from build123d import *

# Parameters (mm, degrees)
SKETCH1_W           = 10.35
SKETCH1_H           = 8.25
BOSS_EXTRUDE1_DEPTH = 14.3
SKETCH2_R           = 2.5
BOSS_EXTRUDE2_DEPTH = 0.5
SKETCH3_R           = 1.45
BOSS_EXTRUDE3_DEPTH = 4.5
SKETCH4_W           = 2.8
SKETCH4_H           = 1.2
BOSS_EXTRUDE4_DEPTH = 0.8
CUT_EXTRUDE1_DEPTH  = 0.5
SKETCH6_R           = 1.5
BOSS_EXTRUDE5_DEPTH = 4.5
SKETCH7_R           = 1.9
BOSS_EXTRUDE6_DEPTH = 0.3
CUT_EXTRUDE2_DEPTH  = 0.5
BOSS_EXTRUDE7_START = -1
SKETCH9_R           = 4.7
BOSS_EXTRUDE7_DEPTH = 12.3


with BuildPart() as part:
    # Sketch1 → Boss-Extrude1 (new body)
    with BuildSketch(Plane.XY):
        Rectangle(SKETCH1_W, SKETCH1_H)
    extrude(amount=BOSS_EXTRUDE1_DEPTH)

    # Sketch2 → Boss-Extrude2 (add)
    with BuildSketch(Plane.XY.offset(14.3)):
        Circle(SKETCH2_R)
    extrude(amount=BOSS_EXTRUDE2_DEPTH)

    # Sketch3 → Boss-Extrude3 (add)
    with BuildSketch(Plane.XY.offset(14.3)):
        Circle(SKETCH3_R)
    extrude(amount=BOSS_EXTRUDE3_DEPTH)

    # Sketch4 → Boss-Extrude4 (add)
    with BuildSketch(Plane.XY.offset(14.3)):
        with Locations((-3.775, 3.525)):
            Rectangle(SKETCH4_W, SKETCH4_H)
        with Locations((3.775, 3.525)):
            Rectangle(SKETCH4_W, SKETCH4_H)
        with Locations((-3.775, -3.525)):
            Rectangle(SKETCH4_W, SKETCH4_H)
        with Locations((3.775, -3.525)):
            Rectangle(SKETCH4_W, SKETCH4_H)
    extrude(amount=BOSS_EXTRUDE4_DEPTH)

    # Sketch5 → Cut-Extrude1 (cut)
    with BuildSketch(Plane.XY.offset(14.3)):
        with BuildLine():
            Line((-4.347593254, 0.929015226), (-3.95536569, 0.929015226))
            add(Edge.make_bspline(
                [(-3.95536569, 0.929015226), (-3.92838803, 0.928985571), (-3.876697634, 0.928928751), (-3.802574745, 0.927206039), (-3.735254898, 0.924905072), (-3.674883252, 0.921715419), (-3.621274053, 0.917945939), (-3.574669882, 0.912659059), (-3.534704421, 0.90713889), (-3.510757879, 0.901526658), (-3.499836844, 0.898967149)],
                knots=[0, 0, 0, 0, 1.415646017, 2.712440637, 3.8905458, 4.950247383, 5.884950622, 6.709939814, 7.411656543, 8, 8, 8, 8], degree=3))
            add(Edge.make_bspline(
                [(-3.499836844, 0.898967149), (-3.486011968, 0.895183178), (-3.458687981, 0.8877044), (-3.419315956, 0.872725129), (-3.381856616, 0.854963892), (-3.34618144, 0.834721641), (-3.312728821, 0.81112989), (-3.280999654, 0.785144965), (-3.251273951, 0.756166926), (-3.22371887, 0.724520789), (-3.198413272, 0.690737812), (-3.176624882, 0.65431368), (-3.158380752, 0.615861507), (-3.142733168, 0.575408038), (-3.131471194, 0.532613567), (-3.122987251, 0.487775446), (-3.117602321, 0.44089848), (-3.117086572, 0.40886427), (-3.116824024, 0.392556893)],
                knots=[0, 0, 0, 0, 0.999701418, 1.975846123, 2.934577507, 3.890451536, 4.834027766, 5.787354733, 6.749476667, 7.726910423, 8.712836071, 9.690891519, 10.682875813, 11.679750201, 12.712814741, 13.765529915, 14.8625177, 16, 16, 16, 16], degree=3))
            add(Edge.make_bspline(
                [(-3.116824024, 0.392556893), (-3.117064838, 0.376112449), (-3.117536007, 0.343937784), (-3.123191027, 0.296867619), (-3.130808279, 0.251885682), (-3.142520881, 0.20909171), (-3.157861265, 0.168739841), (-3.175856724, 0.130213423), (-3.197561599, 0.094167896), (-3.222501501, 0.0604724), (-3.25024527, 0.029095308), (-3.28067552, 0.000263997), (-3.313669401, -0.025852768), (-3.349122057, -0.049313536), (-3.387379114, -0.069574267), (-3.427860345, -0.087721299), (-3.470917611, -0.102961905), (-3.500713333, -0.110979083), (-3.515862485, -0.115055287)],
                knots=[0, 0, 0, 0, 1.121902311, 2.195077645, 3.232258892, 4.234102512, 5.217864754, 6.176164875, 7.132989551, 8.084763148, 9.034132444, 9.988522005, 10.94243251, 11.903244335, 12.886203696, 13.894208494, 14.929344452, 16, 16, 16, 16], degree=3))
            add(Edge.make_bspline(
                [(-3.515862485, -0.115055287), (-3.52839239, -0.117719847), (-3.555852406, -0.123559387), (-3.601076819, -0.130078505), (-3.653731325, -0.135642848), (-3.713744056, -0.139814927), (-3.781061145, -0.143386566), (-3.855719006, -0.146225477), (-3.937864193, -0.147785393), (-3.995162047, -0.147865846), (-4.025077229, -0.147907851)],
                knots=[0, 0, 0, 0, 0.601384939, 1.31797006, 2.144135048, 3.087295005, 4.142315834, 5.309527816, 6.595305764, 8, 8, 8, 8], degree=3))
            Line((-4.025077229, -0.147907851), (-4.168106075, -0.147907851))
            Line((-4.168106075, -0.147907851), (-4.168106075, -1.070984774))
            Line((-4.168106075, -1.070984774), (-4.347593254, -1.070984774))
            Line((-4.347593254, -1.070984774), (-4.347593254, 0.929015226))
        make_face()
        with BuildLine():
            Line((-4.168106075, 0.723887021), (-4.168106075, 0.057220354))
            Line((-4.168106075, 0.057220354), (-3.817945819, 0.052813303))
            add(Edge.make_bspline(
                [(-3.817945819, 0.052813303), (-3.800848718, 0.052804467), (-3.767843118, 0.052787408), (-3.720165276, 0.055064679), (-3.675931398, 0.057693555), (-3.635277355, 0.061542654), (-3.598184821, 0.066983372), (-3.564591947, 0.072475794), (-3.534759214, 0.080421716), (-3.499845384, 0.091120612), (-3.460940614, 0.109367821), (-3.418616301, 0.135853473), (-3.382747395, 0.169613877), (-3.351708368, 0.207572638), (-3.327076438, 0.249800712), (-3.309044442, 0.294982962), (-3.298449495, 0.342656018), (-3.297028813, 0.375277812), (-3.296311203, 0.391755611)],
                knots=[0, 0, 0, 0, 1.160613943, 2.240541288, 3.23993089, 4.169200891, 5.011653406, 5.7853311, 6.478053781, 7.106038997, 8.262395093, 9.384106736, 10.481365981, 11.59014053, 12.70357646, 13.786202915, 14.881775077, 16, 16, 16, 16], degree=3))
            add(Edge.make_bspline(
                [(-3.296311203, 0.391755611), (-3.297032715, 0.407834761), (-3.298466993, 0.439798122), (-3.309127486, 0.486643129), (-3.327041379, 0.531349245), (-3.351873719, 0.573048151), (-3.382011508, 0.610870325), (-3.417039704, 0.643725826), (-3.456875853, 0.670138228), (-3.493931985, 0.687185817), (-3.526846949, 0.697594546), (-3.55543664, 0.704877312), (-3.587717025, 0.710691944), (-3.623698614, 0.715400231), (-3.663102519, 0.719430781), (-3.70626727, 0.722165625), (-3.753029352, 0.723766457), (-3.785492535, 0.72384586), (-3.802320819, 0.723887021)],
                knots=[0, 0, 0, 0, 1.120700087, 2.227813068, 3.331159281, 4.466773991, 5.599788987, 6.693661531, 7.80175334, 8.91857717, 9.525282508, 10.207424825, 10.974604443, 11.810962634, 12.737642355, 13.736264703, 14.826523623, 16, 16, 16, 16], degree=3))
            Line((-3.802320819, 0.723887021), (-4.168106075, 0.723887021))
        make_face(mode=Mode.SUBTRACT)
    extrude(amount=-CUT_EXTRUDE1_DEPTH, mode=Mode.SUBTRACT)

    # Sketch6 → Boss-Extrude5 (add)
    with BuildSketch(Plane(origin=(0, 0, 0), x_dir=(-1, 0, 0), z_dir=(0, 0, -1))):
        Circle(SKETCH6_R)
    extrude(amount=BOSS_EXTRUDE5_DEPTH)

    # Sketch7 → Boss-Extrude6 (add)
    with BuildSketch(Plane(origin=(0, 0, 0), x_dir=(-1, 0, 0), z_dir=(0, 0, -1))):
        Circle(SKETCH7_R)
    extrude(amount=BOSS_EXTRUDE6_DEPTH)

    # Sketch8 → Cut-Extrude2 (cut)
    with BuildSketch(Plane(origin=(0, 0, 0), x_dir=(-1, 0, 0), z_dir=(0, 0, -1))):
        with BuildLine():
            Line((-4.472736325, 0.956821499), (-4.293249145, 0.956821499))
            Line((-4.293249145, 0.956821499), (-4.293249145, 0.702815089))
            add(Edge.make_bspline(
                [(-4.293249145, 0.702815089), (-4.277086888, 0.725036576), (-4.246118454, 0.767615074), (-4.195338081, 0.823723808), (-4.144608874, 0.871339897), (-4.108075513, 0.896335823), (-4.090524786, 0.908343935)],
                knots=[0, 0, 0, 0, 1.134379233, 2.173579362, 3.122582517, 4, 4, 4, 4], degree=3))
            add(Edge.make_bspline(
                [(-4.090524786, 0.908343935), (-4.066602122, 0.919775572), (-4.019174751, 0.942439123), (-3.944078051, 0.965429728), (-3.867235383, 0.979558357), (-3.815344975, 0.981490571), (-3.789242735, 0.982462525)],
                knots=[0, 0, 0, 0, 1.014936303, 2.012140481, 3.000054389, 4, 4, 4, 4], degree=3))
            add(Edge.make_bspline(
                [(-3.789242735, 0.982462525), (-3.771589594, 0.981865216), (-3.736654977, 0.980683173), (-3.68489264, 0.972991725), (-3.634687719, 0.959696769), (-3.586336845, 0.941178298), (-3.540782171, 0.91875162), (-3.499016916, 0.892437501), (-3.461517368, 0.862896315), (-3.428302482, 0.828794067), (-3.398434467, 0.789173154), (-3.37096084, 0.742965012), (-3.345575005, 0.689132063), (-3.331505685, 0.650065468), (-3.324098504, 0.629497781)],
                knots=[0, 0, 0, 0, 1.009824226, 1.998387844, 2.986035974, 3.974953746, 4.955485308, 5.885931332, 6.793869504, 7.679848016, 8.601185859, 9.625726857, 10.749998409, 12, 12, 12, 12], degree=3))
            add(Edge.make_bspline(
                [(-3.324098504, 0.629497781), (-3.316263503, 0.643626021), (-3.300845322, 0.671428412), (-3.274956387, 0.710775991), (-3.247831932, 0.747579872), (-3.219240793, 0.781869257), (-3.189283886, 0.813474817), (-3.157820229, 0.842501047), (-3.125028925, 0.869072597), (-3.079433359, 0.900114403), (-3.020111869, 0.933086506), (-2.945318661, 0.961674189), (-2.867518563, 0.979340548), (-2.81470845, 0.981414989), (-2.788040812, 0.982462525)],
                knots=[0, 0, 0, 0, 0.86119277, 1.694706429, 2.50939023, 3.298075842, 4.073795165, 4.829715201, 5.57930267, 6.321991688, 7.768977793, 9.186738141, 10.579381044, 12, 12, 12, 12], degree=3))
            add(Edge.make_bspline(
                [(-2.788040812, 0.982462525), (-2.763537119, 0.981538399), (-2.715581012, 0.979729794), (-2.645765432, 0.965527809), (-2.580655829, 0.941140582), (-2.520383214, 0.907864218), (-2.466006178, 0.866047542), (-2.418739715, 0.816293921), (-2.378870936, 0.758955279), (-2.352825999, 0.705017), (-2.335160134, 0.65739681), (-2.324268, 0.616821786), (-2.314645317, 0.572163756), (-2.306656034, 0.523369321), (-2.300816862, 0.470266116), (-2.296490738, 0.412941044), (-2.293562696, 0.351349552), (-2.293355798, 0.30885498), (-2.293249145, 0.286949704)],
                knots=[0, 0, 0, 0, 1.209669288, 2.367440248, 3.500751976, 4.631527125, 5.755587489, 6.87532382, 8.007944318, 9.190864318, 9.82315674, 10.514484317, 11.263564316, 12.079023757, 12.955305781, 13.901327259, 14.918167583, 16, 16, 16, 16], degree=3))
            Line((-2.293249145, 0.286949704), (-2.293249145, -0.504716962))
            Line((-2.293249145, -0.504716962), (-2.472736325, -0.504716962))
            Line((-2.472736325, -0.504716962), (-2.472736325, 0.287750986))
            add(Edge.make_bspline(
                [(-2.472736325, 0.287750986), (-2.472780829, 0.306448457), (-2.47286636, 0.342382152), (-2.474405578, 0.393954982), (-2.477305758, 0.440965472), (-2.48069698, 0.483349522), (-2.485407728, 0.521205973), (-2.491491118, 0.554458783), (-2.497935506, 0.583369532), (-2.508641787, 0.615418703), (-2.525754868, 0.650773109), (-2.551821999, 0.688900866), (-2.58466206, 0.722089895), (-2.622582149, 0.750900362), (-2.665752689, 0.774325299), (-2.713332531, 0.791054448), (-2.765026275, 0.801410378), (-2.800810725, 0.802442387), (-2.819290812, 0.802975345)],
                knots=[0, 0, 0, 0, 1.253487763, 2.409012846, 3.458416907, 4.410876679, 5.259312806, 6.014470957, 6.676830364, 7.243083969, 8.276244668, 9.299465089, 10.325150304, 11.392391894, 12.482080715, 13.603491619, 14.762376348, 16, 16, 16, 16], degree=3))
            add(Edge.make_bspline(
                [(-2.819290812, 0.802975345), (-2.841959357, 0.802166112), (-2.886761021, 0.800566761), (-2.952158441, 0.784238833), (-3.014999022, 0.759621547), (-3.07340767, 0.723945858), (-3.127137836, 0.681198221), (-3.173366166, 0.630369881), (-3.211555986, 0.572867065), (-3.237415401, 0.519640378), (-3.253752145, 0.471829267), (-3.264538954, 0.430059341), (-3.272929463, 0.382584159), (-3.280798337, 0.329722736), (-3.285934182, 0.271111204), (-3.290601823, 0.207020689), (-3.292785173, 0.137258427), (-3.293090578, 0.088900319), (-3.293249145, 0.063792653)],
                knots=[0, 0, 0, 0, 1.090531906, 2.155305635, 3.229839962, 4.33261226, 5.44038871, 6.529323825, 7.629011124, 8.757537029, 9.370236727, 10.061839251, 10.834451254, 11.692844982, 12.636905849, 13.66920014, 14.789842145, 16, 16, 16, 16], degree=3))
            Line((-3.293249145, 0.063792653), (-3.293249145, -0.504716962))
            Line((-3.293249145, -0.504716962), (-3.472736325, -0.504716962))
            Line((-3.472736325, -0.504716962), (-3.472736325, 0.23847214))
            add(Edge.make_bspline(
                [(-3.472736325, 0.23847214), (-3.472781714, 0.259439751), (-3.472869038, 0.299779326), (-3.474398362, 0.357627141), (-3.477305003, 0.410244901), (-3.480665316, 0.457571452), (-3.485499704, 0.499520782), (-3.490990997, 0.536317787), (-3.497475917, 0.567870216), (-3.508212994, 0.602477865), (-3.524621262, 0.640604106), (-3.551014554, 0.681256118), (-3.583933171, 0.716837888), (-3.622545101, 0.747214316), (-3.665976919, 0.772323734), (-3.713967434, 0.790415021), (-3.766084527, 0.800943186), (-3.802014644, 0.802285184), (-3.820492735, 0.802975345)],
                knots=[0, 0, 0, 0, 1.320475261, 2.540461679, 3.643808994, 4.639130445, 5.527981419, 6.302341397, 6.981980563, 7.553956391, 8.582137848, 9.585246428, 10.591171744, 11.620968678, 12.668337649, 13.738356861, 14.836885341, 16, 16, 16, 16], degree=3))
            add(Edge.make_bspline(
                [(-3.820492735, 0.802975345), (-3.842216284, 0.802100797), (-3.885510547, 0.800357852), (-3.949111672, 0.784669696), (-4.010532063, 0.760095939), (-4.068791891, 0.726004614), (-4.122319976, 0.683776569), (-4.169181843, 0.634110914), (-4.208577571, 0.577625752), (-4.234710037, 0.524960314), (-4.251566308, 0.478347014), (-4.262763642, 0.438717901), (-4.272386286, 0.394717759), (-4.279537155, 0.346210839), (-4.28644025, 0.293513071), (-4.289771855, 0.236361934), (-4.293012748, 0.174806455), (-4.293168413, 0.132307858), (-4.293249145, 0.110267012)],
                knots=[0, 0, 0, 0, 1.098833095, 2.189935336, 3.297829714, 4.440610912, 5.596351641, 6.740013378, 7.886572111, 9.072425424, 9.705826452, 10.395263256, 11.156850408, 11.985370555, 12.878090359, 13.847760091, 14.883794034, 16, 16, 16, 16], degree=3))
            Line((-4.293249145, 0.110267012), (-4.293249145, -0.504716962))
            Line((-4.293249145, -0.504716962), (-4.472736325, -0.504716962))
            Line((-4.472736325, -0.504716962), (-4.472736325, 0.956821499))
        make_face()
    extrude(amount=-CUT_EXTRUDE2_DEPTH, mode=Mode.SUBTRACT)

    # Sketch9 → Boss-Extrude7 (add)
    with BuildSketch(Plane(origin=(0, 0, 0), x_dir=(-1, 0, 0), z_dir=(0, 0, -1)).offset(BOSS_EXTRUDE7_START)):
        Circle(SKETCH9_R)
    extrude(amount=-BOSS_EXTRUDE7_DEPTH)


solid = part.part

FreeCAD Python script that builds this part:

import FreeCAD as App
import Part
import Sketcher
Q = App.Units.Quantity


def add_polygon(sketch, points):
    """Adds a closed chain of lines whose ends are joined by coincident constraints."""
    first, n = sketch.GeometryCount, len(points)
    for a, b in zip(points, points[1:] + points[:1]):
        sketch.addGeometry(Part.LineSegment(App.Vector(*a, 0), App.Vector(*b, 0)), False)
    for i in range(n):
        sketch.addConstraint(Sketcher.Constraint("Coincident", first + i, 2, first + (i + 1) % n, 1))

doc = App.newDocument("Part")
body = doc.addObject("PartDesign::Body", "Body")

sketch1 = doc.addObject("Sketcher::SketchObject", "Sketch")
body.addObject(sketch1)
sketch1.AttachmentSupport = (doc.XY_Plane, [""])
sketch1.MapMode = "FlatFace"
add_polygon(sketch1, [(-5, 4), (-5, -4), (5, -4), (5, 4)])
sketch1.addConstraint(Sketcher.Constraint("Vertical", 0))
sketch1.addConstraint(Sketcher.Constraint("Horizontal", 1))
sketch1.addConstraint(Sketcher.Constraint("Vertical", 2))
sketch1.addConstraint(Sketcher.Constraint("Horizontal", 3))
sketch1.addConstraint(Sketcher.Constraint("Symmetric", 0, 2, 2, 2, -1, 1))
sketch1.addConstraint(Sketcher.Constraint("DistanceX", 1, 1, 1, 2, Q("10.35 mm")))
sketch1.addConstraint(Sketcher.Constraint("DistanceY", 0, 2, 0, 1, Q("8.25 mm")))
pad1 = doc.addObject("PartDesign::Pad", "Pad")
body.addObject(pad1)
pad1.Profile = sketch1
pad1.Length = 14.3

sketch2 = doc.addObject("Sketcher::SketchObject", "Sketch001")
body.addObject(sketch2)
sketch2.AttachmentSupport = (doc.XY_Plane, [""])
sketch2.MapMode = "FlatFace"
sketch2.AttachmentOffset = App.Placement(App.Vector(0, 0, 14.3), App.Rotation())
sketch2.addGeometry(Part.Circle(App.Vector(0, 0, 0), App.Vector(0, 0, 1), 2.5), False)
sketch2.addConstraint(Sketcher.Constraint("Coincident", 0, 3, -1, 1))
sketch2.addConstraint(Sketcher.Constraint("Diameter", 0, Q("5 mm")))
pad2 = doc.addObject("PartDesign::Pad", "Pad001")
body.addObject(pad2)
pad2.Profile = sketch2
pad2.Length = 0.5

sketch3 = doc.addObject("Sketcher::SketchObject", "Sketch002")
body.addObject(sketch3)
sketch3.AttachmentSupport = (doc.XY_Plane, [""])
sketch3.MapMode = "FlatFace"
sketch3.AttachmentOffset = App.Placement(App.Vector(0, 0, 14.3), App.Rotation())
sketch3.addGeometry(Part.Circle(App.Vector(0, 0, 0), App.Vector(0, 0, 1), 1.4), False)
sketch3.addConstraint(Sketcher.Constraint("Coincident", 0, 3, -1, 1))
sketch3.addConstraint(Sketcher.Constraint("Diameter", 0, Q("2.9 mm")))
pad3 = doc.addObject("PartDesign::Pad", "Pad002")
body.addObject(pad3)
pad3.Profile = sketch3
pad3.Length = 4.5

sketch4 = doc.addObject("Sketcher::SketchObject", "Sketch003")
body.addObject(sketch4)
sketch4.AttachmentSupport = (doc.XY_Plane, [""])
sketch4.MapMode = "FlatFace"
sketch4.AttachmentOffset = App.Placement(App.Vector(0, 0, 14.3), App.Rotation())
add_polygon(sketch4, [(-5.2, 4.1), (-5.2, 2.9), (-2.4, 2.9), (-2.4, 4.1)])
add_polygon(sketch4, [(2.4, 4.1), (2.4, 2.9), (5.2, 2.9), (5.2, 4.1)])
add_polygon(sketch4, [(-5.2, -2.9), (-5.2, -4.1), (-2.4, -4.1), (-2.4, -2.9)])
add_polygon(sketch4, [(2.4, -2.9), (2.4, -4.1), (5.2, -4.1), (5.2, -2.9)])
sketch4.addConstraint(Sketcher.Constraint("Vertical", 0))
sketch4.addConstraint(Sketcher.Constraint("Horizontal", 1))
sketch4.addConstraint(Sketcher.Constraint("Vertical", 2))
sketch4.addConstraint(Sketcher.Constraint("Horizontal", 3))
sketch4.addConstraint(Sketcher.Constraint("Vertical", 4))
sketch4.addConstraint(Sketcher.Constraint("Horizontal", 5))
sketch4.addConstraint(Sketcher.Constraint("Vertical", 6))
sketch4.addConstraint(Sketcher.Constraint("Horizontal", 7))
sketch4.addConstraint(Sketcher.Constraint("Vertical", 8))
sketch4.addConstraint(Sketcher.Constraint("Horizontal", 9))
sketch4.addConstraint(Sketcher.Constraint("Vertical", 10))
sketch4.addConstraint(Sketcher.Constraint("Horizontal", 11))
sketch4.addConstraint(Sketcher.Constraint("Vertical", 12))
sketch4.addConstraint(Sketcher.Constraint("Horizontal", 13))
sketch4.addConstraint(Sketcher.Constraint("Vertical", 14))
sketch4.addConstraint(Sketcher.Constraint("Horizontal", 15))
sketch4.addConstraint(Sketcher.Constraint("Symmetric", 6, 2, 8, 2, -1, 1))
sketch4.addConstraint(Sketcher.Constraint("Symmetric", 4, 2, 10, 2, -1, 1))
sketch4.addConstraint(Sketcher.Constraint("Symmetric", 2, 2, 12, 2, -1, 1))
sketch4.addConstraint(Sketcher.Constraint("Symmetric", 0, 2, 14, 2, -1, 1))
sketch4.addConstraint(Sketcher.Constraint("Symmetric", 1, 2, 4, 2, -2))
sketch4.addConstraint(Sketcher.Constraint("Symmetric", 3, 2, 6, 2, -2))
sketch4.addConstraint(Sketcher.Constraint("DistanceX", 1, 1, 1, 2, Q("2.8 mm")))
sketch4.addConstraint(Sketcher.Constraint("DistanceY", 0, 2, 0, 1, Q("1.2 mm")))
sketch4.addConstraint(Sketcher.Constraint("DistanceX", 1, 2, 4, 2, Q("4.75 mm")))
sketch4.addConstraint(Sketcher.Constraint("DistanceY", 8, 2, 0, 2, Q("7.05 mm")))
pad4 = doc.addObject("PartDesign::Pad", "Pad003")
body.addObject(pad4)
pad4.Profile = sketch4
pad4.Length = 0.8

sketch5 = doc.addObject("Sketcher::SketchObject", "Sketch004")
body.addObject(sketch5)
sketch5.AttachmentSupport = (doc.XY_Plane, [""])
sketch5.MapMode = "FlatFace"
sketch5.AttachmentOffset = App.Placement(App.Vector(0, 0, 14.3), App.Rotation())
sketch5.addGeometry(Part.LineSegment(App.Vector(-3.955366, 0.929015, 0), App.Vector(-4.347593, 0.929015, 0)), False)
sketch5.addGeometry(Part.LineSegment(App.Vector(-4.347593, 0.929015, 0), App.Vector(-4.347593, -1.070985, 0)), False)
sketch5.addGeometry(Part.LineSegment(App.Vector(-4.347593, -1.070985, 0), App.Vector(-4.168106, -1.070985, 0)), False)
sketch5.addGeometry(Part.LineSegment(App.Vector(-4.168106, -1.070985, 0), App.Vector(-4.168106, -0.147908, 0)), False)
sketch5.addGeometry(Part.LineSegment(App.Vector(-4.168106, -0.147908, 0), App.Vector(-4.025077, -0.147908, 0)), False)
sketch5.addGeometry(Part.BSplineCurve([App.Vector(-3.515862, -0.115055, 0), App.Vector(-3.528392, -0.11772, 0), App.Vector(-3.555852, -0.123559, 0), App.Vector(-3.601077, -0.130079, 0), App.Vector(-3.653731, -0.135643, 0), App.Vector(-3.713744, -0.139815, 0), App.Vector(-3.781061, -0.143387, 0), App.Vector(-3.855719, -0.146225, 0), App.Vector(-3.937864, -0.147785, 0), App.Vector(-3.995162, -0.147866, 0), App.Vector(-4.025077, -0.147908, 0)], [4, 1, 1, 1, 1, 1, 1, 1, 4], [0, 0.601384939, 1.31797006, 2.144135048, 3.087295005, 4.142315834, 5.309527816, 6.595305764, 8], False, 3, [1, 1, 1, 1, 1, 1, 1, 1, 1, 1, 1], False), False)
sketch5.addGeometry(Part.BSplineCurve([App.Vector(-3.116824, 0.392557, 0), App.Vector(-3.117065, 0.376112, 0), App.Vector(-3.117536, 0.343938, 0), App.Vector(-3.123191, 0.296868, 0), App.Vector(-3.130808, 0.251886, 0), App.Vector(-3.142521, 0.209092, 0), App.Vector(-3.157861, 0.16874, 0), App.Vector(-3.175857, 0.130213, 0), App.Vector(-3.197562, 0.094168, 0), App.Vector(-3.222502, 0.060472, 0), App.Vector(-3.250245, 0.029095, 0), App.Vector(-3.280676, 0.000264, 0), App.Vector(-3.313669, -0.025853, 0), App.Vector(-3.349122, -0.049314, 0), App.Vector(-3.387379, -0.069574, 0), App.Vector(-3.42786, -0.087721, 0), App.Vector(-3.470918, -0.102962, 0), App.Vector(-3.500713, -0.110979, 0), App.Vector(-3.515862, -0.115055, 0)], [4, 1, 1, 1, 1, 1, 1, 1, 1, 1, 1, 1, 1, 1, 1, 1, 4], [0, 1.121902311, 2.195077645, 3.232258892, 4.234102512, 5.217864754, 6.176164875, 7.132989551, 8.084763148, 9.034132444, 9.988522005, 10.94243251, 11.903244335, 12.886203696, 13.894208494, 14.929344452, 16], False, 3, [1, 1, 1, 1, 1, 1, 1, 1, 1, 1, 1, 1, 1, 1, 1, 1, 1, 1, 1], False), False)
sketch5.addGeometry(Part.BSplineCurve([App.Vector(-3.499837, 0.898967, 0), App.Vector(-3.486012, 0.895183, 0), App.Vector(-3.458688, 0.887704, 0), App.Vector(-3.419316, 0.872725, 0), App.Vector(-3.381857, 0.854964, 0), App.Vector(-3.346181, 0.834722, 0), App.Vector(-3.312729, 0.81113, 0), App.Vector(-3.281, 0.785145, 0), App.Vector(-3.251274, 0.756167, 0), App.Vector(-3.223719, 0.724521, 0), App.Vector(-3.198413, 0.690738, 0), App.Vector(-3.176625, 0.654314, 0), App.Vector(-3.158381, 0.615862, 0), App.Vector(-3.142733, 0.575408, 0), App.Vector(-3.131471, 0.532614, 0), App.Vector(-3.122987, 0.487775, 0), App.Vector(-3.117602, 0.440898, 0), App.Vector(-3.117087, 0.408864, 0), App.Vector(-3.116824, 0.392557, 0)], [4, 1, 1, 1, 1, 1, 1, 1, 1, 1, 1, 1, 1, 1, 1, 1, 4], [0, 0.999701418, 1.975846123, 2.934577507, 3.890451536, 4.834027766, 5.787354733, 6.749476667, 7.726910423, 8.712836071, 9.690891519, 10.682875813, 11.679750201, 12.712814741, 13.765529915, 14.8625177, 16], False, 3, [1, 1, 1, 1, 1, 1, 1, 1, 1, 1, 1, 1, 1, 1, 1, 1, 1, 1, 1], False), False)
sketch5.addGeometry(Part.BSplineCurve([App.Vector(-3.955366, 0.929015, 0), App.Vector(-3.928388, 0.928986, 0), App.Vector(-3.876698, 0.928929, 0), App.Vector(-3.802575, 0.927206, 0), App.Vector(-3.735255, 0.924905, 0), App.Vector(-3.674883, 0.921715, 0), App.Vector(-3.621274, 0.917946, 0), App.Vector(-3.57467, 0.912659, 0), App.Vector(-3.534704, 0.907139, 0), App.Vector(-3.510758, 0.901527, 0), App.Vector(-3.499837, 0.898967, 0)], [4, 1, 1, 1, 1, 1, 1, 1, 4], [0, 1.415646017, 2.712440637, 3.8905458, 4.950247383, 5.884950622, 6.709939814, 7.411656543, 8], False, 3, [1, 1, 1, 1, 1, 1, 1, 1, 1, 1, 1], False), False)
sketch5.addGeometry(Part.LineSegment(App.Vector(-4.168106, 0.723887, 0), App.Vector(-3.802321, 0.723887, 0)), False)
sketch5.addGeometry(Part.BSplineCurve([App.Vector(-3.296311, 0.391756, 0), App.Vector(-3.297033, 0.407835, 0), App.Vector(-3.298467, 0.439798, 0), App.Vector(-3.309127, 0.486643, 0), App.Vector(-3.327041, 0.531349, 0), App.Vector(-3.351874, 0.573048, 0), App.Vector(-3.382012, 0.61087, 0), App.Vector(-3.41704, 0.643726, 0), App.Vector(-3.456876, 0.670138, 0), App.Vector(-3.493932, 0.687186, 0), App.Vector(-3.526847, 0.697595, 0), App.Vector(-3.555437, 0.704877, 0), App.Vector(-3.587717, 0.710692, 0), App.Vector(-3.623699, 0.7154, 0), App.Vector(-3.663103, 0.719431, 0), App.Vector(-3.706267, 0.722166, 0), App.Vector(-3.753029, 0.723766, 0), App.Vector(-3.785493, 0.723846, 0), App.Vector(-3.802321, 0.723887, 0)], [4, 1, 1, 1, 1, 1, 1, 1, 1, 1, 1, 1, 1, 1, 1, 1, 4], [0, 1.120700087, 2.227813068, 3.331159281, 4.466773991, 5.599788987, 6.693661531, 7.80175334, 8.91857717, 9.525282508, 10.207424825, 10.974604443, 11.810962634, 12.737642355, 13.736264703, 14.826523623, 16], False, 3, [1, 1, 1, 1, 1, 1, 1, 1, 1, 1, 1, 1, 1, 1, 1, 1, 1, 1, 1], False), False)
sketch5.addGeometry(Part.BSplineCurve([App.Vector(-3.817946, 0.052813, 0), App.Vector(-3.800849, 0.052804, 0), App.Vector(-3.767843, 0.052787, 0), App.Vector(-3.720165, 0.055065, 0), App.Vector(-3.675931, 0.057694, 0), App.Vector(-3.635277, 0.061543, 0), App.Vector(-3.598185, 0.066983, 0), App.Vector(-3.564592, 0.072476, 0), App.Vector(-3.534759, 0.080422, 0), App.Vector(-3.499845, 0.091121, 0), App.Vector(-3.460941, 0.109368, 0), App.Vector(-3.418616, 0.135853, 0), App.Vector(-3.382747, 0.169614, 0), App.Vector(-3.351708, 0.207573, 0), App.Vector(-3.327076, 0.249801, 0), App.Vector(-3.309044, 0.294983, 0), App.Vector(-3.298449, 0.342656, 0), App.Vector(-3.297029, 0.375278, 0), App.Vector(-3.296311, 0.391756, 0)], [4, 1, 1, 1, 1, 1, 1, 1, 1, 1, 1, 1, 1, 1, 1, 1, 4], [0, 1.160613943, 2.240541288, 3.23993089, 4.169200891, 5.011653406, 5.7853311, 6.478053781, 7.106038997, 8.262395093, 9.384106736, 10.481365981, 11.59014053, 12.70357646, 13.786202915, 14.881775077, 16], False, 3, [1, 1, 1, 1, 1, 1, 1, 1, 1, 1, 1, 1, 1, 1, 1, 1, 1, 1, 1], False), False)
sketch5.addGeometry(Part.LineSegment(App.Vector(-3.817946, 0.052813, 0), App.Vector(-4.168106, 0.05722, 0)), False)
sketch5.addGeometry(Part.LineSegment(App.Vector(-4.168106, 0.05722, 0), App.Vector(-4.168106, 0.723887, 0)), False)
sketch5.addConstraint(Sketcher.Constraint("Block", 5))
sketch5.addConstraint(Sketcher.Constraint("Block", 6))
sketch5.addConstraint(Sketcher.Constraint("Block", 7))
sketch5.addConstraint(Sketcher.Constraint("Block", 8))
sketch5.addConstraint(Sketcher.Constraint("Block", 10))
sketch5.addConstraint(Sketcher.Constraint("Block", 11))
sketch5.addConstraint(Sketcher.Constraint("Coincident", 0, 2, 1, 1))
sketch5.addConstraint(Sketcher.Constraint("Coincident", 1, 2, 2, 1))
sketch5.addConstraint(Sketcher.Constraint("Coincident", 2, 2, 3, 1))
sketch5.addConstraint(Sketcher.Constraint("Coincident", 3, 2, 4, 1))
sketch5.addConstraint(Sketcher.Constraint("Coincident", 4, 2, 5, 2))
sketch5.addConstraint(Sketcher.Constraint("Coincident", 8, 1, 0, 1))
sketch5.addConstraint(Sketcher.Constraint("Coincident", 9, 2, 10, 2))
sketch5.addConstraint(Sketcher.Constraint("Coincident", 11, 1, 12, 1))
sketch5.addConstraint(Sketcher.Constraint("Coincident", 12, 2, 13, 1))
sketch5.addConstraint(Sketcher.Constraint("Coincident", 13, 2, 9, 1))
sketch5.addConstraint(Sketcher.Constraint("Horizontal", 0))
sketch5.addConstraint(Sketcher.Constraint("Vertical", 1))
sketch5.addConstraint(Sketcher.Constraint("Horizontal", 2))
sketch5.addConstraint(Sketcher.Constraint("Vertical", 3))
sketch5.addConstraint(Sketcher.Constraint("Horizontal", 4))
sketch5.addConstraint(Sketcher.Constraint("Horizontal", 9))
sketch5.addConstraint(Sketcher.Constraint("Vertical", 13))
sketch5.addConstraint(Sketcher.Constraint("Vertical", 3, 2, 12, 2))
sketch5.addConstraint(Sketcher.Constraint("DistanceY", 1, 2, 1, 1, Q("2 mm")))
sketch5.addConstraint(Sketcher.Constraint("DistanceX", 4, 1, 4, 2, Q("0.143029 mm")))
sketch5.addConstraint(Sketcher.Constraint("DistanceX", 0, 2, 0, 1, Q("0.392228 mm")))
sketch5.addConstraint(Sketcher.Constraint("DistanceY", 13, 1, 13, 2, Q("0.666667 mm")))
pocket1 = doc.addObject("PartDesign::Pocket", "Pocket")
body.addObject(pocket1)
pocket1.Profile = sketch5
pocket1.Length = 0.5

sketch6 = doc.addObject("Sketcher::SketchObject", "Sketch005")
body.addObject(sketch6)
sketch6.AttachmentSupport = (doc.XY_Plane, [""])
sketch6.MapMode = "FlatFace"
sketch6.addGeometry(Part.Circle(App.Vector(0, 0, 0), App.Vector(0, 0, 1), 1.5), False)
sketch6.addConstraint(Sketcher.Constraint("Coincident", 0, 3, -1, 1))
sketch6.addConstraint(Sketcher.Constraint("Diameter", 0, Q("3 mm")))
pad5 = doc.addObject("PartDesign::Pad", "Pad004")
body.addObject(pad5)
pad5.Profile = sketch6
pad5.Length = 4.5
pad5.Reversed = True

sketch7 = doc.addObject("Sketcher::SketchObject", "Sketch006")
body.addObject(sketch7)
sketch7.AttachmentSupport = (doc.XY_Plane, [""])
sketch7.MapMode = "FlatFace"
sketch7.addGeometry(Part.Circle(App.Vector(0, 0, 0), App.Vector(0, 0, 1), 1.9), False)
sketch7.addConstraint(Sketcher.Constraint("Coincident", 0, 3, -1, 1))
sketch7.addConstraint(Sketcher.Constraint("Diameter", 0, Q("3.8 mm")))
pad6 = doc.addObject("PartDesign::Pad", "Pad005")
body.addObject(pad6)
pad6.Profile = sketch7
pad6.Length = 0.3
pad6.Reversed = True

sketch8 = doc.addObject("Sketcher::SketchObject", "Sketch007")
body.addObject(sketch8)
sketch8.AttachmentSupport = (doc.XY_Plane, [""])
sketch8.MapMode = "FlatFace"
sketch8.addGeometry(Part.LineSegment(App.Vector(4.293249, 0.956821, 0), App.Vector(4.472736, 0.956821, 0)), False)
sketch8.addGeometry(Part.LineSegment(App.Vector(4.472736, 0.956821, 0), App.Vector(4.472736, -0.504717, 0)), False)
sketch8.addGeometry(Part.LineSegment(App.Vector(4.472736, -0.504717, 0), App.Vector(4.293249, -0.504717, 0)), False)
sketch8.addGeometry(Part.LineSegment(App.Vector(4.293249, -0.504717, 0), App.Vector(4.293249, 0.110267, 0)), False)
sketch8.addGeometry(Part.BSplineCurve([App.Vector(3.820493, 0.802975, 0), App.Vector(3.842216, 0.802101, 0), App.Vector(3.885511, 0.800358, 0), App.Vector(3.949112, 0.78467, 0), App.Vector(4.010532, 0.760096, 0), App.Vector(4.068792, 0.726005, 0), App.Vector(4.12232, 0.683777, 0), App.Vector(4.169182, 0.634111, 0), App.Vector(4.208578, 0.577626, 0), App.Vector(4.23471, 0.52496, 0), App.Vector(4.251566, 0.478347, 0), App.Vector(4.262764, 0.438718, 0), App.Vector(4.272386, 0.394718, 0), App.Vector(4.279537, 0.346211, 0), App.Vector(4.28644, 0.293513, 0), App.Vector(4.289772, 0.236362, 0), App.Vector(4.293013, 0.174806, 0), App.Vector(4.293168, 0.132308, 0), App.Vector(4.293249, 0.110267, 0)], [4, 1, 1, 1, 1, 1, 1, 1, 1, 1, 1, 1, 1, 1, 1, 1, 4], [0, 1.098833095, 2.189935336, 3.297829714, 4.440610912, 5.596351641, 6.740013378, 7.886572111, 9.072425424, 9.705826452, 10.395263256, 11.156850408, 11.985370555, 12.878090359, 13.847760091, 14.883794034, 16], False, 3, [1, 1, 1, 1, 1, 1, 1, 1, 1, 1, 1, 1, 1, 1, 1, 1, 1, 1, 1], False), False)
sketch8.addGeometry(Part.BSplineCurve([App.Vector(3.472736, 0.238472, 0), App.Vector(3.472782, 0.25944, 0), App.Vector(3.472869, 0.299779, 0), App.Vector(3.474398, 0.357627, 0), App.Vector(3.477305, 0.410245, 0), App.Vector(3.480665, 0.457571, 0), App.Vector(3.4855, 0.499521, 0), App.Vector(3.490991, 0.536318, 0), App.Vector(3.497476, 0.56787, 0), App.Vector(3.508213, 0.602478, 0), App.Vector(3.524621, 0.640604, 0), App.Vector(3.551015, 0.681256, 0), App.Vector(3.583933, 0.716838, 0), App.Vector(3.622545, 0.747214, 0), App.Vector(3.665977, 0.772324, 0), App.Vector(3.713967, 0.790415, 0), App.Vector(3.766085, 0.800943, 0), App.Vector(3.802015, 0.802285, 0), App.Vector(3.820493, 0.802975, 0)], [4, 1, 1, 1, 1, 1, 1, 1, 1, 1, 1, 1, 1, 1, 1, 1, 4], [0, 1.320475261, 2.540461679, 3.643808994, 4.639130445, 5.527981419, 6.302341397, 6.981980563, 7.553956391, 8.582137848, 9.585246428, 10.591171744, 11.620968678, 12.668337649, 13.738356861, 14.836885341, 16], False, 3, [1, 1, 1, 1, 1, 1, 1, 1, 1, 1, 1, 1, 1, 1, 1, 1, 1, 1, 1], False), False)
sketch8.addGeometry(Part.LineSegment(App.Vector(3.472736, 0.238472, 0), App.Vector(3.472736, -0.504717, 0)), False)
sketch8.addGeometry(Part.LineSegment(App.Vector(3.472736, -0.504717, 0), App.Vector(3.293249, -0.504717, 0)), False)
sketch8.addGeometry(Part.LineSegment(App.Vector(3.293249, -0.504717, 0), App.Vector(3.293249, 0.063793, 0)), False)
sketch8.addGeometry(Part.BSplineCurve([App.Vector(2.819291, 0.802975, 0), App.Vector(2.841959, 0.802166, 0), App.Vector(2.886761, 0.800567, 0), App.Vector(2.952158, 0.784239, 0), App.Vector(3.014999, 0.759622, 0), App.Vector(3.073408, 0.723946, 0), App.Vector(3.127138, 0.681198, 0), App.Vector(3.173366, 0.63037, 0), App.Vector(3.211556, 0.572867, 0), App.Vector(3.237415, 0.51964, 0), App.Vector(3.253752, 0.471829, 0), App.Vector(3.264539, 0.430059, 0), App.Vector(3.272929, 0.382584, 0), App.Vector(3.280798, 0.329723, 0), App.Vector(3.285934, 0.271111, 0), App.Vector(3.290602, 0.207021, 0), App.Vector(3.292785, 0.137258, 0), App.Vector(3.293091, 0.0889, 0), App.Vector(3.293249, 0.063793, 0)], [4, 1, 1, 1, 1, 1, 1, 1, 1, 1, 1, 1, 1, 1, 1, 1, 4], [0, 1.090531906, 2.155305635, 3.229839962, 4.33261226, 5.44038871, 6.529323825, 7.629011124, 8.757537029, 9.370236727, 10.061839251, 10.834451254, 11.692844982, 12.636905849, 13.66920014, 14.789842145, 16], False, 3, [1, 1, 1, 1, 1, 1, 1, 1, 1, 1, 1, 1, 1, 1, 1, 1, 1, 1, 1], False), False)
sketch8.addGeometry(Part.BSplineCurve([App.Vector(2.472736, 0.287751, 0), App.Vector(2.472781, 0.306448, 0), App.Vector(2.472866, 0.342382, 0), App.Vector(2.474406, 0.393955, 0), App.Vector(2.477306, 0.440965, 0), App.Vector(2.480697, 0.48335, 0), App.Vector(2.485408, 0.521206, 0), App.Vector(2.491491, 0.554459, 0), App.Vector(2.497936, 0.58337, 0), App.Vector(2.508642, 0.615419, 0), App.Vector(2.525755, 0.650773, 0), App.Vector(2.551822, 0.688901, 0), App.Vector(2.584662, 0.72209, 0), App.Vector(2.622582, 0.7509, 0), App.Vector(2.665753, 0.774325, 0), App.Vector(2.713333, 0.791054, 0), App.Vector(2.765026, 0.80141, 0), App.Vector(2.800811, 0.802442, 0), App.Vector(2.819291, 0.802975, 0)], [4, 1, 1, 1, 1, 1, 1, 1, 1, 1, 1, 1, 1, 1, 1, 1, 4], [0, 1.253487763, 2.409012846, 3.458416907, 4.410876679, 5.259312806, 6.014470957, 6.676830364, 7.243083969, 8.276244668, 9.299465089, 10.325150304, 11.392391894, 12.482080715, 13.603491619, 14.762376348, 16], False, 3, [1, 1, 1, 1, 1, 1, 1, 1, 1, 1, 1, 1, 1, 1, 1, 1, 1, 1, 1], False), False)
sketch8.addGeometry(Part.LineSegment(App.Vector(2.472736, 0.287751, 0), App.Vector(2.472736, -0.504717, 0)), False)
sketch8.addGeometry(Part.LineSegment(App.Vector(2.472736, -0.504717, 0), App.Vector(2.293249, -0.504717, 0)), False)
sketch8.addGeometry(Part.LineSegment(App.Vector(2.293249, -0.504717, 0), App.Vector(2.293249, 0.28695, 0)), False)
sketch8.addGeometry(Part.BSplineCurve([App.Vector(2.788041, 0.982463, 0), App.Vector(2.763537, 0.981538, 0), App.Vector(2.715581, 0.97973, 0), App.Vector(2.645765, 0.965528, 0), App.Vector(2.580656, 0.941141, 0), App.Vector(2.520383, 0.907864, 0), App.Vector(2.466006, 0.866048, 0), App.Vector(2.41874, 0.816294, 0), App.Vector(2.378871, 0.758955, 0), App.Vector(2.352826, 0.705017, 0), App.Vector(2.33516, 0.657397, 0), App.Vector(2.324268, 0.616822, 0), App.Vector(2.314645, 0.572164, 0), App.Vector(2.306656, 0.523369, 0), App.Vector(2.300817, 0.470266, 0), App.Vector(2.296491, 0.412941, 0), App.Vector(2.293563, 0.35135, 0), App.Vector(2.293356, 0.308855, 0), App.Vector(2.293249, 0.28695, 0)], [4, 1, 1, 1, 1, 1, 1, 1, 1, 1, 1, 1, 1, 1, 1, 1, 4], [0, 1.209669288, 2.367440248, 3.500751976, 4.631527125, 5.755587489, 6.87532382, 8.007944318, 9.190864318, 9.82315674, 10.514484317, 11.263564316, 12.079023757, 12.955305781, 13.901327259, 14.918167583, 16], False, 3, [1, 1, 1, 1, 1, 1, 1, 1, 1, 1, 1, 1, 1, 1, 1, 1, 1, 1, 1], False), False)
sketch8.addGeometry(Part.BSplineCurve([App.Vector(3.324099, 0.629498, 0), App.Vector(3.316264, 0.643626, 0), App.Vector(3.300845, 0.671428, 0), App.Vector(3.274956, 0.710776, 0), App.Vector(3.247832, 0.74758, 0), App.Vector(3.219241, 0.781869, 0), App.Vector(3.189284, 0.813475, 0), App.Vector(3.15782, 0.842501, 0), App.Vector(3.125029, 0.869073, 0), App.Vector(3.079433, 0.900114, 0), App.Vector(3.020112, 0.933087, 0), App.Vector(2.945319, 0.961674, 0), App.Vector(2.867519, 0.979341, 0), App.Vector(2.814708, 0.981415, 0), App.Vector(2.788041, 0.982463, 0)], [4, 1, 1, 1, 1, 1, 1, 1, 1, 1, 1, 1, 4], [0, 0.86119277, 1.694706429, 2.50939023, 3.298075842, 4.073795165, 4.829715201, 5.57930267, 6.321991688, 7.768977793, 9.186738141, 10.579381044, 12], False, 3, [1, 1, 1, 1, 1, 1, 1, 1, 1, 1, 1, 1, 1, 1, 1], False), False)
sketch8.addGeometry(Part.BSplineCurve([App.Vector(3.789243, 0.982463, 0), App.Vector(3.77159, 0.981865, 0), App.Vector(3.736655, 0.980683, 0), App.Vector(3.684893, 0.972992, 0), App.Vector(3.634688, 0.959697, 0), App.Vector(3.586337, 0.941178, 0), App.Vector(3.540782, 0.918752, 0), App.Vector(3.499017, 0.892438, 0), App.Vector(3.461517, 0.862896, 0), App.Vector(3.428302, 0.828794, 0), App.Vector(3.398434, 0.789173, 0), App.Vector(3.370961, 0.742965, 0), App.Vector(3.345575, 0.689132, 0), App.Vector(3.331506, 0.650065, 0), App.Vector(3.324099, 0.629498, 0)], [4, 1, 1, 1, 1, 1, 1, 1, 1, 1, 1, 1, 4], [0, 1.009824226, 1.998387844, 2.986035974, 3.974953746, 4.955485308, 5.885931332, 6.793869504, 7.679848016, 8.601185859, 9.625726857, 10.749998409, 12], False, 3, [1, 1, 1, 1, 1, 1, 1, 1, 1, 1, 1, 1, 1, 1, 1], False), False)
sketch8.addGeometry(Part.BSplineCurve([App.Vector(4.090525, 0.908344, 0), App.Vector(4.066602, 0.919776, 0), App.Vector(4.019175, 0.942439, 0), App.Vector(3.944078, 0.96543, 0), App.Vector(3.867235, 0.979558, 0), App.Vector(3.815345, 0.981491, 0), App.Vector(3.789243, 0.982463, 0)], [4, 1, 1, 1, 4], [0, 1.014936303, 2.012140481, 3.000054389, 4], False, 3, [1, 1, 1, 1, 1, 1, 1], False), False)
sketch8.addGeometry(Part.BSplineCurve([App.Vector(4.293249, 0.702815, 0), App.Vector(4.277087, 0.725037, 0), App.Vector(4.246118, 0.767615, 0), App.Vector(4.195338, 0.823724, 0), App.Vector(4.144609, 0.87134, 0), App.Vector(4.108076, 0.896336, 0), App.Vector(4.090525, 0.908344, 0)], [4, 1, 1, 1, 4], [0, 1.134379233, 2.173579362, 3.122582517, 4], False, 3, [1, 1, 1, 1, 1, 1, 1], False), False)
sketch8.addGeometry(Part.LineSegment(App.Vector(4.293249, 0.702815, 0), App.Vector(4.293249, 0.956821, 0)), False)
sketch8.addConstraint(Sketcher.Constraint("Block", 4))
sketch8.addConstraint(Sketcher.Constraint("Block", 5))
sketch8.addConstraint(Sketcher.Constraint("Block", 9))
sketch8.addConstraint(Sketcher.Constraint("Block", 10))
sketch8.addConstraint(Sketcher.Constraint("Block", 14))
sketch8.addConstraint(Sketcher.Constraint("Block", 15))
sketch8.addConstraint(Sketcher.Constraint("Block", 16))
sketch8.addConstraint(Sketcher.Constraint("Block", 17))
sketch8.addConstraint(Sketcher.Constraint("Block", 18))
sketch8.addConstraint(Sketcher.Constraint("Coincident", 0, 2, 1, 1))
sketch8.addConstraint(Sketcher.Constraint("Coincident", 1, 2, 2, 1))
sketch8.addConstraint(Sketcher.Constraint("Coincident", 2, 2, 3, 1))
sketch8.addConstraint(Sketcher.Constraint("Coincident", 3, 2, 4, 2))
sketch8.addConstraint(Sketcher.Constraint("Coincident", 5, 1, 6, 1))
sketch8.addConstraint(Sketcher.Constraint("Coincident", 6, 2, 7, 1))
sketch8.addConstraint(Sketcher.Constraint("Coincident", 7, 2, 8, 1))
sketch8.addConstraint(Sketcher.Constraint("Coincident", 8, 2, 9, 2))
sketch8.addConstraint(Sketcher.Constraint("Coincident", 10, 1, 11, 1))
sketch8.addConstraint(Sketcher.Constraint("Coincident", 11, 2, 12, 1))
sketch8.addConstraint(Sketcher.Constraint("Coincident", 12, 2, 13, 1))
sketch8.addConstraint(Sketcher.Constraint("Coincident", 13, 2, 14, 2))
sketch8.addConstraint(Sketcher.Constraint("Coincident", 18, 1, 19, 1))
sketch8.addConstraint(Sketcher.Constraint("Coincident", 19, 2, 0, 1))
sketch8.addConstraint(Sketcher.Constraint("Horizontal", 0))
sketch8.addConstraint(Sketcher.Constraint("Vertical", 1))
sketch8.addConstraint(Sketcher.Constraint("Horizontal", 2))
sketch8.addConstraint(Sketcher.Constraint("Vertical", 3))
sketch8.addConstraint(Sketcher.Constraint("Vertical", 6))
sketch8.addConstraint(Sketcher.Constraint("Horizontal", 7))
sketch8.addConstraint(Sketcher.Constraint("Vertical", 8))
sketch8.addConstraint(Sketcher.Constraint("Vertical", 11))
sketch8.addConstraint(Sketcher.Constraint("Horizontal", 12))
sketch8.addConstraint(Sketcher.Constraint("Vertical", 13))
sketch8.addConstraint(Sketcher.Constraint("Vertical", 19))
sketch8.addConstraint(Sketcher.Constraint("DistanceX", 6, 2, 1, 2, Q("1 mm")))
sketch8.addConstraint(Sketcher.Constraint("DistanceY", 1, 2, 1, 1, Q("1.461538 mm")))
sketch8.addConstraint(Sketcher.Constraint("DistanceY", 6, 2, 6, 1, Q("0.743189 mm")))
sketch8.addConstraint(Sketcher.Constraint("DistanceY", 3, 1, 3, 2, Q("0.614984 mm")))
sketch8.addConstraint(Sketcher.Constraint("DistanceY", 11, 2, 11, 1, Q("0.792468 mm")))
pocket2 = doc.addObject("PartDesign::Pocket", "Pocket001")
body.addObject(pocket2)
pocket2.Profile = sketch8
pocket2.Length = 0.5
pocket2.Reversed = True

sketch9 = doc.addObject("Sketcher::SketchObject", "Sketch008")
body.addObject(sketch9)
sketch9.AttachmentSupport = (doc.XY_Plane, [""])
sketch9.MapMode = "FlatFace"
sketch9.AttachmentOffset = App.Placement(App.Vector(0, 0, 1), App.Rotation())
sketch9.addGeometry(Part.Circle(App.Vector(0, 0, 0), App.Vector(0, 0, 1), 4.7), False)
sketch9.addConstraint(Sketcher.Constraint("Coincident", 0, 3, -1, 1))
sketch9.addConstraint(Sketcher.Constraint("Diameter", 0, Q("9.4 mm")))
pad7 = doc.addObject("PartDesign::Pad", "Pad006")
body.addObject(pad7)
pad7.Profile = sketch9
pad7.Length = 12.3

doc.recompute()
